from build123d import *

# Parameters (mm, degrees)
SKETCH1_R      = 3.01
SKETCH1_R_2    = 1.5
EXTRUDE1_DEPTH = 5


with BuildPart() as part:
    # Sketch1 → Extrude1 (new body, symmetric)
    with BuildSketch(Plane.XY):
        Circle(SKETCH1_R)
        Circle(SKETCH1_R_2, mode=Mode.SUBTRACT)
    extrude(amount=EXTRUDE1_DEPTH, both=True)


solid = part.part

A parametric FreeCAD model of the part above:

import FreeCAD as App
import Part
import Sketcher
Q = App.Units.Quantity

doc = App.newDocument("Part")
body = doc.addObject("PartDesign::Body", "Body")

sketch1 = body.newObject("Sketcher::SketchObject", "Sketch")
sketch1.AttachmentSupport = (doc.getObject("XY_Plane"), [""])
sketch1.MapMode = "FlatFace"
sketch1.addGeometry([
    Part.Circle(App.Vector(0, 0, 0), App.Vector(0, 0, 1), 3),
    Part.Circle(App.Vector(0, 0, 0), App.Vector(0, 0, 1), 1.5),
], False)
sketch1.addConstraint([
    Sketcher.Constraint("Coincident", 0, 3, -1, 1),
    Sketcher.Constraint("Coincident", 1, 3, -1, 1),
    Sketcher.Constraint("Diameter", 1, Q("3 mm")),
    Sketcher.Constraint("Diameter", 0, Q("6.02 mm")),
])
pad1 = body.newObject("PartDesign::Pad", "Pad")
pad1.Profile = sketch1
pad1.Length = 10
pad1.Midplane = True

doc.recompute()
